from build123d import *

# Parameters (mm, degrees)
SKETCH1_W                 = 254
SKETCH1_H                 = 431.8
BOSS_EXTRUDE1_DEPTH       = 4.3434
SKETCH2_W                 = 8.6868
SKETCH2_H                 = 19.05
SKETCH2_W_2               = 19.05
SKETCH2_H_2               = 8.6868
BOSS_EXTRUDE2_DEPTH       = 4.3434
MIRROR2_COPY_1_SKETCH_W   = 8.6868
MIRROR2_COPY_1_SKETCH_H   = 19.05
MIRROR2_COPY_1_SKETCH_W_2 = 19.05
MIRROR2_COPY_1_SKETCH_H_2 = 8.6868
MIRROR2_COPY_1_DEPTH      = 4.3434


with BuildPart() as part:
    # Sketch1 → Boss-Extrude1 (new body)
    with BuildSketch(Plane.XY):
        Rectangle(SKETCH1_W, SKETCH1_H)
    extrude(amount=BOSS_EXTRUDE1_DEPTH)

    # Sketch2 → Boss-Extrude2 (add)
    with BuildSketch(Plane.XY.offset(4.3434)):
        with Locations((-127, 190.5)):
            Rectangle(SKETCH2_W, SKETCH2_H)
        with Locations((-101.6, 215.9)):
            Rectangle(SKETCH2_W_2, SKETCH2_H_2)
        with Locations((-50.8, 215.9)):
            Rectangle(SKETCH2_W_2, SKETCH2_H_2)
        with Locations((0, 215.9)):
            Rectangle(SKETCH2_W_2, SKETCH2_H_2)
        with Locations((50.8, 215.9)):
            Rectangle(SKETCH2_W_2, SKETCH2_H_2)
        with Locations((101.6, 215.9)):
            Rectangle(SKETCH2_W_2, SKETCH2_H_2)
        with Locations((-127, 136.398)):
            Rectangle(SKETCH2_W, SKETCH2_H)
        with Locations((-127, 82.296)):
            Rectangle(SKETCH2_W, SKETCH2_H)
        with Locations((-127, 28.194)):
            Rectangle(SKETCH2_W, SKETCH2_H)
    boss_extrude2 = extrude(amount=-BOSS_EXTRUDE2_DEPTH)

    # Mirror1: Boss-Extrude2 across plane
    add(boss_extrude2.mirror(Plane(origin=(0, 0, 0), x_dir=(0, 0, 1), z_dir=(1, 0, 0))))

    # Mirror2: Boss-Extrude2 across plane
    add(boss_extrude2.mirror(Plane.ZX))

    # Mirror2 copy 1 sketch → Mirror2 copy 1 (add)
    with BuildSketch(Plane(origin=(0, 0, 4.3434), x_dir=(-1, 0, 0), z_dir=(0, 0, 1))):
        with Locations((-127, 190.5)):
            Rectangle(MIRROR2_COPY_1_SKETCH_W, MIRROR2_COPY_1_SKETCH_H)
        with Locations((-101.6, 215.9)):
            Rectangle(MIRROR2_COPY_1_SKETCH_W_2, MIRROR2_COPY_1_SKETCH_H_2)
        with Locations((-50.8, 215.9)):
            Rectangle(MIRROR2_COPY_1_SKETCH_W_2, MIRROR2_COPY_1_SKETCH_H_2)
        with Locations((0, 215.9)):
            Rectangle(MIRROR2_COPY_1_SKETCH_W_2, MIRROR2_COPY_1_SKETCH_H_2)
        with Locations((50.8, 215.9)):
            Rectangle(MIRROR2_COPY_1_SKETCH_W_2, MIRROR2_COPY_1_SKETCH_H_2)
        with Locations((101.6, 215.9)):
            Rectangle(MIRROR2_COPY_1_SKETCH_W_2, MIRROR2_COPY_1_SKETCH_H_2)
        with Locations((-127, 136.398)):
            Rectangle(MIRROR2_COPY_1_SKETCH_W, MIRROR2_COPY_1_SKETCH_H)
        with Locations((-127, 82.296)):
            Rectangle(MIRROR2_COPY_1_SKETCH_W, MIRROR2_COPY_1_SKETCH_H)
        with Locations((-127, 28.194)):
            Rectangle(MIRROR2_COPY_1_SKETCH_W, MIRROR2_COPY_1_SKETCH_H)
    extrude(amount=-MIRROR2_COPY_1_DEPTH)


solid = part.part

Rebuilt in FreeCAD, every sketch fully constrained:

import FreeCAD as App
import Part
import Sketcher
Q = App.Units.Quantity

doc = App.newDocument("Part")
params = doc.addObject("Spreadsheet::Sheet", "Params")
for row, (alias, value) in enumerate([
    ("sketch1_width", "10 in"),
    ("sketch1_height", "17 in"),
    ("pad1_length", "0.171 in"),
    ("sketch2_width", "0.75 in"),
    ("sketch2_width2", "0.342 in"),
    ("pad2_length", "0.171 in"),
    ("sketch3_width", "0.75 in"),
    ("sketch3_width2", "0.342 in"),
    ("pad3_length", "0.171 in"),
], start=1):
    params.set(f"A{row}", alias)
    params.set(f"B{row}", "=" + value)
    params.setAlias(f"B{row}", alias)

body = doc.addObject("PartDesign::Body", "Body")

# Sketch on XY plane
sketch1 = body.newObject("Sketcher::SketchObject", "Sketch")
sketch1.AttachmentSupport = (doc.getObject("XY_Plane"), [""])
sketch1.MapMode = "FlatFace"
sketch1.addGeometry([
    Part.LineSegment(App.Vector(-127, 216, 0), App.Vector(-127, -216, 0)),
    Part.LineSegment(App.Vector(-127, -216, 0), App.Vector(127, -216, 0)),
    Part.LineSegment(App.Vector(127, -216, 0), App.Vector(127, 216, 0)),
    Part.LineSegment(App.Vector(127, 216, 0), App.Vector(-127, 216, 0)),
], False)
sketch1.addConstraint([
    Sketcher.Constraint("Coincident", 0, 2, 1, 1),
    Sketcher.Constraint("Coincident", 1, 2, 2, 1),
    Sketcher.Constraint("Coincident", 2, 2, 3, 1),
    Sketcher.Constraint("Coincident", 3, 2, 0, 1),
    Sketcher.Constraint("Vertical", 0),
    Sketcher.Constraint("Horizontal", 1),
    Sketcher.Constraint("Vertical", 2),
    Sketcher.Constraint("Horizontal", 3),
    Sketcher.Constraint("Symmetric", 0, 2, 2, 2, -1, 1),
    Sketcher.Constraint("DistanceX", 1, 1, 1, 2, Q("10 in")),
    Sketcher.Constraint("DistanceY", 0, 2, 0, 1, Q("17 in")),
])
sketch1.setExpression("Constraints[9]", "Params.sketch1_width")
sketch1.setExpression("Constraints[10]", "Params.sketch1_height")
pad1 = body.newObject("PartDesign::Pad", "Pad")
pad1.Profile = sketch1
pad1.setExpression("Length", "Params.pad1_length")

# Sketch on XY plane
sketch2 = body.newObject("Sketcher::SketchObject", "Sketch001")
sketch2.AttachmentSupport = (doc.getObject("XY_Plane"), [""])
sketch2.MapMode = "FlatFace"
sketch2.AttachmentOffset = App.Placement(App.Vector(0, 0, 0.171 * 25.4), App.Rotation())
sketch2.addGeometry([
    Part.LineSegment(App.Vector(-131, 200, 0), App.Vector(-131, 181, 0)),  # 0
    Part.LineSegment(App.Vector(-131, 181, 0), App.Vector(-123, 181, 0)),  # 1
    Part.LineSegment(App.Vector(-123, 181, 0), App.Vector(-123, 200, 0)),  # 2
    Part.LineSegment(App.Vector(-123, 200, 0), App.Vector(-131, 200, 0)),  # 3
    Part.LineSegment(App.Vector(-111, 220, 0), App.Vector(-111, 212, 0)),  # 4
    Part.LineSegment(App.Vector(-111, 212, 0), App.Vector(-92, 212, 0)),  # 5
    Part.LineSegment(App.Vector(-92, 212, 0), App.Vector(-92, 220, 0)),  # 6
    Part.LineSegment(App.Vector(-92, 220, 0), App.Vector(-111, 220, 0)),  # 7
    Part.LineSegment(App.Vector(-60, 220, 0), App.Vector(-60, 212, 0)),  # 8
    Part.LineSegment(App.Vector(-60, 212, 0), App.Vector(-41, 212, 0)),  # 9
    Part.LineSegment(App.Vector(-41, 212, 0), App.Vector(-41, 220, 0)),  # 10
    Part.LineSegment(App.Vector(-41, 220, 0), App.Vector(-60, 220, 0)),  # 11
    Part.LineSegment(App.Vector(-10, 220, 0), App.Vector(-10, 212, 0)),  # 12
    Part.LineSegment(App.Vector(-10, 212, 0), App.Vector(10, 212, 0)),  # 13
    Part.LineSegment(App.Vector(10, 212, 0), App.Vector(10, 220, 0)),  # 14
    Part.LineSegment(App.Vector(10, 220, 0), App.Vector(-10, 220, 0)),  # 15
    Part.LineSegment(App.Vector(41, 220, 0), App.Vector(41, 212, 0)),  # 16
    Part.LineSegment(App.Vector(41, 212, 0), App.Vector(60, 212, 0)),  # 17
    Part.LineSegment(App.Vector(60, 212, 0), App.Vector(60, 220, 0)),  # 18
    Part.LineSegment(App.Vector(60, 220, 0), App.Vector(41, 220, 0)),  # 19
    Part.LineSegment(App.Vector(92, 220, 0), App.Vector(92, 212, 0)),  # 20
    Part.LineSegment(App.Vector(92, 212, 0), App.Vector(111, 212, 0)),  # 21
    Part.LineSegment(App.Vector(111, 212, 0), App.Vector(111, 220, 0)),  # 22
    Part.LineSegment(App.Vector(111, 220, 0), App.Vector(92, 220, 0)),  # 23
    Part.LineSegment(App.Vector(-131, 146, 0), App.Vector(-131, 127, 0)),  # 24
    Part.LineSegment(App.Vector(-131, 127, 0), App.Vector(-123, 127, 0)),  # 25
    Part.LineSegment(App.Vector(-123, 127, 0), App.Vector(-123, 146, 0)),  # 26
    Part.LineSegment(App.Vector(-123, 146, 0), App.Vector(-131, 146, 0)),  # 27
    Part.LineSegment(App.Vector(-131, 92, 0), App.Vector(-131, 73, 0)),  # 28
    Part.LineSegment(App.Vector(-131, 73, 0), App.Vector(-123, 73, 0)),  # 29
    Part.LineSegment(App.Vector(-123, 73, 0), App.Vector(-123, 92, 0)),  # 30
    Part.LineSegment(App.Vector(-123, 92, 0), App.Vector(-131, 92, 0)),  # 31
    Part.LineSegment(App.Vector(-131, 38, 0), App.Vector(-131, 19, 0)),  # 32
    Part.LineSegment(App.Vector(-131, 19, 0), App.Vector(-123, 19, 0)),  # 33
    Part.LineSegment(App.Vector(-123, 19, 0), App.Vector(-123, 38, 0)),  # 34
    Part.LineSegment(App.Vector(-123, 38, 0), App.Vector(-131, 38, 0)),  # 35
], False)
sketch2.addConstraint([
    Sketcher.Constraint("Coincident", 0, 2, 1, 1),
    Sketcher.Constraint("Coincident", 1, 2, 2, 1),
    Sketcher.Constraint("Coincident", 2, 2, 3, 1),
    Sketcher.Constraint("Coincident", 3, 2, 0, 1),
    Sketcher.Constraint("Coincident", 4, 2, 5, 1),
    Sketcher.Constraint("Coincident", 5, 2, 6, 1),
    Sketcher.Constraint("Coincident", 6, 2, 7, 1),
    Sketcher.Constraint("Coincident", 7, 2, 4, 1),
    Sketcher.Constraint("Coincident", 8, 2, 9, 1),
    Sketcher.Constraint("Coincident", 9, 2, 10, 1),
    Sketcher.Constraint("Coincident", 10, 2, 11, 1),
    Sketcher.Constraint("Coincident", 11, 2, 8, 1),
    Sketcher.Constraint("Coincident", 12, 2, 13, 1),
    Sketcher.Constraint("Coincident", 13, 2, 14, 1),
    Sketcher.Constraint("Coincident", 14, 2, 15, 1),
    Sketcher.Constraint("Coincident", 15, 2, 12, 1),
    Sketcher.Constraint("Coincident", 16, 2, 17, 1),
    Sketcher.Constraint("Coincident", 17, 2, 18, 1),
    Sketcher.Constraint("Coincident", 18, 2, 19, 1),
    Sketcher.Constraint("Coincident", 19, 2, 16, 1),
    Sketcher.Constraint("Coincident", 20, 2, 21, 1),
    Sketcher.Constraint("Coincident", 21, 2, 22, 1),
    Sketcher.Constraint("Coincident", 22, 2, 23, 1),
    Sketcher.Constraint("Coincident", 23, 2, 20, 1),
    Sketcher.Constraint("Coincident", 24, 2, 25, 1),
    Sketcher.Constraint("Coincident", 25, 2, 26, 1),
    Sketcher.Constraint("Coincident", 26, 2, 27, 1),
    Sketcher.Constraint("Coincident", 27, 2, 24, 1),
    Sketcher.Constraint("Coincident", 28, 2, 29, 1),
    Sketcher.Constraint("Coincident", 29, 2, 30, 1),
    Sketcher.Constraint("Coincident", 30, 2, 31, 1),
    Sketcher.Constraint("Coincident", 31, 2, 28, 1),
    Sketcher.Constraint("Coincident", 32, 2, 33, 1),
    Sketcher.Constraint("Coincident", 33, 2, 34, 1),
    Sketcher.Constraint("Coincident", 34, 2, 35, 1),
    Sketcher.Constraint("Coincident", 35, 2, 32, 1),
    Sketcher.Constraint("Vertical", 0),
    Sketcher.Constraint("Horizontal", 1),
    Sketcher.Constraint("Vertical", 2),
    Sketcher.Constraint("Horizontal", 3),
    Sketcher.Constraint("Vertical", 4),
    Sketcher.Constraint("Horizontal", 5),
    Sketcher.Constraint("Vertical", 6),
    Sketcher.Constraint("Horizontal", 7),
    Sketcher.Constraint("Vertical", 8),
    Sketcher.Constraint("Horizontal", 9),
    Sketcher.Constraint("Vertical", 10),
    Sketcher.Constraint("Horizontal", 11),
    Sketcher.Constraint("Vertical", 12),
    Sketcher.Constraint("Horizontal", 13),
    Sketcher.Constraint("Vertical", 14),
    Sketcher.Constraint("Horizontal", 15),
    Sketcher.Constraint("Vertical", 16),
    Sketcher.Constraint("Horizontal", 17),
    Sketcher.Constraint("Vertical", 18),
    Sketcher.Constraint("Horizontal", 19),
    Sketcher.Constraint("Vertical", 20),
    Sketcher.Constraint("Horizontal", 21),
    Sketcher.Constraint("Vertical", 22),
    Sketcher.Constraint("Horizontal", 23),
    Sketcher.Constraint("Vertical", 24),
    Sketcher.Constraint("Horizontal", 25),
    Sketcher.Constraint("Vertical", 26),
    Sketcher.Constraint("Horizontal", 27),
    Sketcher.Constraint("Vertical", 28),
    Sketcher.Constraint("Horizontal", 29),
    Sketcher.Constraint("Vertical", 30),
    Sketcher.Constraint("Horizontal", 31),
    Sketcher.Constraint("Vertical", 32),
    Sketcher.Constraint("Horizontal", 33),
    Sketcher.Constraint("Vertical", 34),
    Sketcher.Constraint("Horizontal", 35),
    Sketcher.Constraint("Symmetric", 9, 2, 16, 2, -2),
    Sketcher.Constraint("Symmetric", 11, 2, 18, 2, -2),
    Sketcher.Constraint("Symmetric", 5, 2, 20, 2, -2),
    Sketcher.Constraint("Symmetric", 7, 2, 22, 2, -2),
    Sketcher.Constraint("Horizontal", 5, 2, 8, 2),
    Sketcher.Constraint("Horizontal", 7, 2, 10, 2),
    Sketcher.Constraint("Horizontal", 9, 2, 12, 2),
    Sketcher.Constraint("Horizontal", 11, 2, 14, 2),
    Sketcher.Constraint("Vertical", 3, 2, 24, 2),
    Sketcher.Constraint("Vertical", 2, 2, 25, 2),
    Sketcher.Constraint("Vertical", 27, 2, 28, 2),
    Sketcher.Constraint("Vertical", 26, 2, 29, 2),
    Sketcher.Constraint("Vertical", 31, 2, 32, 2),
    Sketcher.Constraint("Vertical", 30, 2, 33, 2),
    Sketcher.Constraint("Equal", 7, 9),
    Sketcher.Constraint("Equal", 11, 13),
    Sketcher.Constraint("Equal", 23, 0),
    Sketcher.Constraint("Equal", 35, 4),
    Sketcher.Constraint("Equal", 2, 24),
    Sketcher.Constraint("Equal", 26, 28),
    Sketcher.Constraint("Equal", 30, 32),
    Sketcher.Constraint("DistanceX", 4, 2, 8, 2, Q("2 in")),
    Sketcher.Constraint("DistanceX", 8, 2, 12, 2, Q("2 in")),
    Sketcher.Constraint("DistanceX", 12, 2, 16, 2, Q("2 in")),
    Sketcher.Constraint("DistanceX", 5, 1, 5, 2, Q("0.75 in")),
    Sketcher.Constraint("DistanceX", 1, 1, 1, 2, Q("0.342 in")),
    Sketcher.Constraint("DistanceY", 24, 2, 0, 2, Q("2.13 in")),
    Sketcher.Constraint("DistanceY", 28, 2, 24, 2, Q("2.13 in")),
    Sketcher.Constraint("DistanceY", 32, 2, 28, 2, Q("2.13 in")),
    Sketcher.Constraint("DistanceX", 0, 2, -1, 1, Q("5.171 in")),
    Sketcher.Constraint("DistanceY", -1, 1, 0, 2, Q("7.125 in")),
    Sketcher.Constraint("DistanceY", -1, 1, 4, 2, Q("8.329 in")),
])
sketch2.setExpression("Constraints[96]", "Params.sketch2_width")
sketch2.setExpression("Constraints[97]", "Params.sketch2_width2")
pad2 = body.newObject("PartDesign::Pad", "Pad001")
pad2.Profile = sketch2
pad2.setExpression("Length", "Params.pad2_length")
pad2.Reversed = True
doc.recompute()

mirrored = body.newObject("PartDesign::Mirrored", "Mirrored")
mirrored.Originals = [pad2]
mirrored.MirrorPlane = (doc.getObject("YZ_Plane"), [""])
body.Tip = mirrored
doc.recompute()

mirrored2 = body.newObject("PartDesign::Mirrored", "Mirrored001")
mirrored2.Originals = [pad2]
mirrored2.MirrorPlane = (doc.getObject("XZ_Plane"), [""])
body.Tip = mirrored2

# Sketch on XY plane
sketch3 = body.newObject("Sketcher::SketchObject", "Sketch002")
sketch3.AttachmentSupport = (doc.getObject("XY_Plane"), [""])
sketch3.MapMode = "FlatFace"
sketch3.AttachmentOffset = App.Placement(App.Vector(0, 0, 0.171 * 25.4), App.Rotation())
sketch3.addGeometry([
    Part.LineSegment(App.Vector(131, -200, 0), App.Vector(131, -181, 0)),  # 0
    Part.LineSegment(App.Vector(131, -181, 0), App.Vector(123, -181, 0)),  # 1
    Part.LineSegment(App.Vector(123, -181, 0), App.Vector(123, -200, 0)),  # 2
    Part.LineSegment(App.Vector(123, -200, 0), App.Vector(131, -200, 0)),  # 3
    Part.LineSegment(App.Vector(111, -220, 0), App.Vector(111, -212, 0)),  # 4
    Part.LineSegment(App.Vector(111, -212, 0), App.Vector(92, -212, 0)),  # 5
    Part.LineSegment(App.Vector(92, -212, 0), App.Vector(92, -220, 0)),  # 6
    Part.LineSegment(App.Vector(92, -220, 0), App.Vector(111, -220, 0)),  # 7
    Part.LineSegment(App.Vector(60, -220, 0), App.Vector(60, -212, 0)),  # 8
    Part.LineSegment(App.Vector(60, -212, 0), App.Vector(41, -212, 0)),  # 9
    Part.LineSegment(App.Vector(41, -212, 0), App.Vector(41, -220, 0)),  # 10
    Part.LineSegment(App.Vector(41, -220, 0), App.Vector(60, -220, 0)),  # 11
    Part.LineSegment(App.Vector(10, -220, 0), App.Vector(10, -212, 0)),  # 12
    Part.LineSegment(App.Vector(10, -212, 0), App.Vector(-10, -212, 0)),  # 13
    Part.LineSegment(App.Vector(-10, -212, 0), App.Vector(-10, -220, 0)),  # 14
    Part.LineSegment(App.Vector(-10, -220, 0), App.Vector(10, -220, 0)),  # 15
    Part.LineSegment(App.Vector(-41, -220, 0), App.Vector(-41, -212, 0)),  # 16
    Part.LineSegment(App.Vector(-41, -212, 0), App.Vector(-60, -212, 0)),  # 17
    Part.LineSegment(App.Vector(-60, -212, 0), App.Vector(-60, -220, 0)),  # 18
    Part.LineSegment(App.Vector(-60, -220, 0), App.Vector(-41, -220, 0)),  # 19
    Part.LineSegment(App.Vector(-92, -220, 0), App.Vector(-92, -212, 0)),  # 20
    Part.LineSegment(App.Vector(-92, -212, 0), App.Vector(-111, -212, 0)),  # 21
    Part.LineSegment(App.Vector(-111, -212, 0), App.Vector(-111, -220, 0)),  # 22
    Part.LineSegment(App.Vector(-111, -220, 0), App.Vector(-92, -220, 0)),  # 23
    Part.LineSegment(App.Vector(131, -146, 0), App.Vector(131, -127, 0)),  # 24
    Part.LineSegment(App.Vector(131, -127, 0), App.Vector(123, -127, 0)),  # 25
    Part.LineSegment(App.Vector(123, -127, 0), App.Vector(123, -146, 0)),  # 26
    Part.LineSegment(App.Vector(123, -146, 0), App.Vector(131, -146, 0)),  # 27
    Part.LineSegment(App.Vector(131, -92, 0), App.Vector(131, -73, 0)),  # 28
    Part.LineSegment(App.Vector(131, -73, 0), App.Vector(123, -73, 0)),  # 29
    Part.LineSegment(App.Vector(123, -73, 0), App.Vector(123, -92, 0)),  # 30
    Part.LineSegment(App.Vector(123, -92, 0), App.Vector(131, -92, 0)),  # 31
    Part.LineSegment(App.Vector(131, -38, 0), App.Vector(131, -19, 0)),  # 32
    Part.LineSegment(App.Vector(131, -19, 0), App.Vector(123, -19, 0)),  # 33
    Part.LineSegment(App.Vector(123, -19, 0), App.Vector(123, -38, 0)),  # 34
    Part.LineSegment(App.Vector(123, -38, 0), App.Vector(131, -38, 0)),  # 35
], False)
sketch3.addConstraint([
    Sketcher.Constraint("Coincident", 0, 2, 1, 1),
    Sketcher.Constraint("Coincident", 1, 2, 2, 1),
    Sketcher.Constraint("Coincident", 2, 2, 3, 1),
    Sketcher.Constraint("Coincident", 3, 2, 0, 1),
    Sketcher.Constraint("Coincident", 4, 2, 5, 1),
    Sketcher.Constraint("Coincident", 5, 2, 6, 1),
    Sketcher.Constraint("Coincident", 6, 2, 7, 1),
    Sketcher.Constraint("Coincident", 7, 2, 4, 1),
    Sketcher.Constraint("Coincident", 8, 2, 9, 1),
    Sketcher.Constraint("Coincident", 9, 2, 10, 1),
    Sketcher.Constraint("Coincident", 10, 2, 11, 1),
    Sketcher.Constraint("Coincident", 11, 2, 8, 1),
    Sketcher.Constraint("Coincident", 12, 2, 13, 1),
    Sketcher.Constraint("Coincident", 13, 2, 14, 1),
    Sketcher.Constraint("Coincident", 14, 2, 15, 1),
    Sketcher.Constraint("Coincident", 15, 2, 12, 1),
    Sketcher.Constraint("Coincident", 16, 2, 17, 1),
    Sketcher.Constraint("Coincident", 17, 2, 18, 1),
    Sketcher.Constraint("Coincident", 18, 2, 19, 1),
    Sketcher.Constraint("Coincident", 19, 2, 16, 1),
    Sketcher.Constraint("Coincident", 20, 2, 21, 1),
    Sketcher.Constraint("Coincident", 21, 2, 22, 1),
    Sketcher.Constraint("Coincident", 22, 2, 23, 1),
    Sketcher.Constraint("Coincident", 23, 2, 20, 1),
    Sketcher.Constraint("Coincident", 24, 2, 25, 1),
    Sketcher.Constraint("Coincident", 25, 2, 26, 1),
    Sketcher.Constraint("Coincident", 26, 2, 27, 1),
    Sketcher.Constraint("Coincident", 27, 2, 24, 1),
    Sketcher.Constraint("Coincident", 28, 2, 29, 1),
    Sketcher.Constraint("Coincident", 29, 2, 30, 1),
    Sketcher.Constraint("Coincident", 30, 2, 31, 1),
    Sketcher.Constraint("Coincident", 31, 2, 28, 1),
    Sketcher.Constraint("Coincident", 32, 2, 33, 1),
    Sketcher.Constraint("Coincident", 33, 2, 34, 1),
    Sketcher.Constraint("Coincident", 34, 2, 35, 1),
    Sketcher.Constraint("Coincident", 35, 2, 32, 1),
    Sketcher.Constraint("Vertical", 0),
    Sketcher.Constraint("Horizontal", 1),
    Sketcher.Constraint("Vertical", 2),
    Sketcher.Constraint("Horizontal", 3),
    Sketcher.Constraint("Vertical", 4),
    Sketcher.Constraint("Horizontal", 5),
    Sketcher.Constraint("Vertical", 6),
    Sketcher.Constraint("Horizontal", 7),
    Sketcher.Constraint("Vertical", 8),
    Sketcher.Constraint("Horizontal", 9),
    Sketcher.Constraint("Vertical", 10),
    Sketcher.Constraint("Horizontal", 11),
    Sketcher.Constraint("Vertical", 12),
    Sketcher.Constraint("Horizontal", 13),
    Sketcher.Constraint("Vertical", 14),
    Sketcher.Constraint("Horizontal", 15),
    Sketcher.Constraint("Vertical", 16),
    Sketcher.Constraint("Horizontal", 17),
    Sketcher.Constraint("Vertical", 18),
    Sketcher.Constraint("Horizontal", 19),
    Sketcher.Constraint("Vertical", 20),
    Sketcher.Constraint("Horizontal", 21),
    Sketcher.Constraint("Vertical", 22),
    Sketcher.Constraint("Horizontal", 23),
    Sketcher.Constraint("Vertical", 24),
    Sketcher.Constraint("Horizontal", 25),
    Sketcher.Constraint("Vertical", 26),
    Sketcher.Constraint("Horizontal", 27),
    Sketcher.Constraint("Vertical", 28),
    Sketcher.Constraint("Horizontal", 29),
    Sketcher.Constraint("Vertical", 30),
    Sketcher.Constraint("Horizontal", 31),
    Sketcher.Constraint("Vertical", 32),
    Sketcher.Constraint("Horizontal", 33),
    Sketcher.Constraint("Vertical", 34),
    Sketcher.Constraint("Horizontal", 35),
    Sketcher.Constraint("Symmetric", 9, 2, 16, 2, -2),
    Sketcher.Constraint("Symmetric", 11, 2, 18, 2, -2),
    Sketcher.Constraint("Symmetric", 5, 2, 20, 2, -2),
    Sketcher.Constraint("Symmetric", 7, 2, 22, 2, -2),
    Sketcher.Constraint("Horizontal", 5, 2, 8, 2),
    Sketcher.Constraint("Horizontal", 7, 2, 10, 2),
    Sketcher.Constraint("Horizontal", 9, 2, 12, 2),
    Sketcher.Constraint("Horizontal", 11, 2, 14, 2),
    Sketcher.Constraint("Vertical", 3, 2, 24, 2),
    Sketcher.Constraint("Vertical", 2, 2, 25, 2),
    Sketcher.Constraint("Vertical", 27, 2, 28, 2),
    Sketcher.Constraint("Vertical", 26, 2, 29, 2),
    Sketcher.Constraint("Vertical", 31, 2, 32, 2),
    Sketcher.Constraint("Vertical", 30, 2, 33, 2),
    Sketcher.Constraint("Equal", 7, 9),
    Sketcher.Constraint("Equal", 11, 13),
    Sketcher.Constraint("Equal", 23, 0),
    Sketcher.Constraint("Equal", 35, 4),
    Sketcher.Constraint("Equal", 2, 24),
    Sketcher.Constraint("Equal", 26, 28),
    Sketcher.Constraint("Equal", 30, 32),
    Sketcher.Constraint("DistanceX", 8, 2, 4, 2, Q("2 in")),
    Sketcher.Constraint("DistanceX", 12, 2, 8, 2, Q("2 in")),
    Sketcher.Constraint("DistanceX", 16, 2, 12, 2, Q("2 in")),
    Sketcher.Constraint("DistanceX", 5, 2, 5, 1, Q("0.75 in")),
    Sketcher.Constraint("DistanceX", 1, 2, 1, 1, Q("0.342 in")),
    Sketcher.Constraint("DistanceY", 0, 2, 24, 2, Q("2.13 in")),
    Sketcher.Constraint("DistanceY", 24, 2, 28, 2, Q("2.13 in")),
    Sketcher.Constraint("DistanceY", 28, 2, 32, 2, Q("2.13 in")),
    Sketcher.Constraint("DistanceX", -1, 1, 0, 2, Q("5.171 in")),
    Sketcher.Constraint("DistanceY", 0, 2, -1, 1, Q("7.125 in")),
    Sketcher.Constraint("DistanceY", 4, 2, -1, 1, Q("8.329 in")),
])
sketch3.setExpression("Constraints[96]", "Params.sketch3_width")
sketch3.setExpression("Constraints[97]", "Params.sketch3_width2")
pad3 = body.newObject("PartDesign::Pad", "Pad002")
pad3.Profile = sketch3
pad3.setExpression("Length", "Params.pad3_length")
pad3.Reversed = True

doc.recompute()
